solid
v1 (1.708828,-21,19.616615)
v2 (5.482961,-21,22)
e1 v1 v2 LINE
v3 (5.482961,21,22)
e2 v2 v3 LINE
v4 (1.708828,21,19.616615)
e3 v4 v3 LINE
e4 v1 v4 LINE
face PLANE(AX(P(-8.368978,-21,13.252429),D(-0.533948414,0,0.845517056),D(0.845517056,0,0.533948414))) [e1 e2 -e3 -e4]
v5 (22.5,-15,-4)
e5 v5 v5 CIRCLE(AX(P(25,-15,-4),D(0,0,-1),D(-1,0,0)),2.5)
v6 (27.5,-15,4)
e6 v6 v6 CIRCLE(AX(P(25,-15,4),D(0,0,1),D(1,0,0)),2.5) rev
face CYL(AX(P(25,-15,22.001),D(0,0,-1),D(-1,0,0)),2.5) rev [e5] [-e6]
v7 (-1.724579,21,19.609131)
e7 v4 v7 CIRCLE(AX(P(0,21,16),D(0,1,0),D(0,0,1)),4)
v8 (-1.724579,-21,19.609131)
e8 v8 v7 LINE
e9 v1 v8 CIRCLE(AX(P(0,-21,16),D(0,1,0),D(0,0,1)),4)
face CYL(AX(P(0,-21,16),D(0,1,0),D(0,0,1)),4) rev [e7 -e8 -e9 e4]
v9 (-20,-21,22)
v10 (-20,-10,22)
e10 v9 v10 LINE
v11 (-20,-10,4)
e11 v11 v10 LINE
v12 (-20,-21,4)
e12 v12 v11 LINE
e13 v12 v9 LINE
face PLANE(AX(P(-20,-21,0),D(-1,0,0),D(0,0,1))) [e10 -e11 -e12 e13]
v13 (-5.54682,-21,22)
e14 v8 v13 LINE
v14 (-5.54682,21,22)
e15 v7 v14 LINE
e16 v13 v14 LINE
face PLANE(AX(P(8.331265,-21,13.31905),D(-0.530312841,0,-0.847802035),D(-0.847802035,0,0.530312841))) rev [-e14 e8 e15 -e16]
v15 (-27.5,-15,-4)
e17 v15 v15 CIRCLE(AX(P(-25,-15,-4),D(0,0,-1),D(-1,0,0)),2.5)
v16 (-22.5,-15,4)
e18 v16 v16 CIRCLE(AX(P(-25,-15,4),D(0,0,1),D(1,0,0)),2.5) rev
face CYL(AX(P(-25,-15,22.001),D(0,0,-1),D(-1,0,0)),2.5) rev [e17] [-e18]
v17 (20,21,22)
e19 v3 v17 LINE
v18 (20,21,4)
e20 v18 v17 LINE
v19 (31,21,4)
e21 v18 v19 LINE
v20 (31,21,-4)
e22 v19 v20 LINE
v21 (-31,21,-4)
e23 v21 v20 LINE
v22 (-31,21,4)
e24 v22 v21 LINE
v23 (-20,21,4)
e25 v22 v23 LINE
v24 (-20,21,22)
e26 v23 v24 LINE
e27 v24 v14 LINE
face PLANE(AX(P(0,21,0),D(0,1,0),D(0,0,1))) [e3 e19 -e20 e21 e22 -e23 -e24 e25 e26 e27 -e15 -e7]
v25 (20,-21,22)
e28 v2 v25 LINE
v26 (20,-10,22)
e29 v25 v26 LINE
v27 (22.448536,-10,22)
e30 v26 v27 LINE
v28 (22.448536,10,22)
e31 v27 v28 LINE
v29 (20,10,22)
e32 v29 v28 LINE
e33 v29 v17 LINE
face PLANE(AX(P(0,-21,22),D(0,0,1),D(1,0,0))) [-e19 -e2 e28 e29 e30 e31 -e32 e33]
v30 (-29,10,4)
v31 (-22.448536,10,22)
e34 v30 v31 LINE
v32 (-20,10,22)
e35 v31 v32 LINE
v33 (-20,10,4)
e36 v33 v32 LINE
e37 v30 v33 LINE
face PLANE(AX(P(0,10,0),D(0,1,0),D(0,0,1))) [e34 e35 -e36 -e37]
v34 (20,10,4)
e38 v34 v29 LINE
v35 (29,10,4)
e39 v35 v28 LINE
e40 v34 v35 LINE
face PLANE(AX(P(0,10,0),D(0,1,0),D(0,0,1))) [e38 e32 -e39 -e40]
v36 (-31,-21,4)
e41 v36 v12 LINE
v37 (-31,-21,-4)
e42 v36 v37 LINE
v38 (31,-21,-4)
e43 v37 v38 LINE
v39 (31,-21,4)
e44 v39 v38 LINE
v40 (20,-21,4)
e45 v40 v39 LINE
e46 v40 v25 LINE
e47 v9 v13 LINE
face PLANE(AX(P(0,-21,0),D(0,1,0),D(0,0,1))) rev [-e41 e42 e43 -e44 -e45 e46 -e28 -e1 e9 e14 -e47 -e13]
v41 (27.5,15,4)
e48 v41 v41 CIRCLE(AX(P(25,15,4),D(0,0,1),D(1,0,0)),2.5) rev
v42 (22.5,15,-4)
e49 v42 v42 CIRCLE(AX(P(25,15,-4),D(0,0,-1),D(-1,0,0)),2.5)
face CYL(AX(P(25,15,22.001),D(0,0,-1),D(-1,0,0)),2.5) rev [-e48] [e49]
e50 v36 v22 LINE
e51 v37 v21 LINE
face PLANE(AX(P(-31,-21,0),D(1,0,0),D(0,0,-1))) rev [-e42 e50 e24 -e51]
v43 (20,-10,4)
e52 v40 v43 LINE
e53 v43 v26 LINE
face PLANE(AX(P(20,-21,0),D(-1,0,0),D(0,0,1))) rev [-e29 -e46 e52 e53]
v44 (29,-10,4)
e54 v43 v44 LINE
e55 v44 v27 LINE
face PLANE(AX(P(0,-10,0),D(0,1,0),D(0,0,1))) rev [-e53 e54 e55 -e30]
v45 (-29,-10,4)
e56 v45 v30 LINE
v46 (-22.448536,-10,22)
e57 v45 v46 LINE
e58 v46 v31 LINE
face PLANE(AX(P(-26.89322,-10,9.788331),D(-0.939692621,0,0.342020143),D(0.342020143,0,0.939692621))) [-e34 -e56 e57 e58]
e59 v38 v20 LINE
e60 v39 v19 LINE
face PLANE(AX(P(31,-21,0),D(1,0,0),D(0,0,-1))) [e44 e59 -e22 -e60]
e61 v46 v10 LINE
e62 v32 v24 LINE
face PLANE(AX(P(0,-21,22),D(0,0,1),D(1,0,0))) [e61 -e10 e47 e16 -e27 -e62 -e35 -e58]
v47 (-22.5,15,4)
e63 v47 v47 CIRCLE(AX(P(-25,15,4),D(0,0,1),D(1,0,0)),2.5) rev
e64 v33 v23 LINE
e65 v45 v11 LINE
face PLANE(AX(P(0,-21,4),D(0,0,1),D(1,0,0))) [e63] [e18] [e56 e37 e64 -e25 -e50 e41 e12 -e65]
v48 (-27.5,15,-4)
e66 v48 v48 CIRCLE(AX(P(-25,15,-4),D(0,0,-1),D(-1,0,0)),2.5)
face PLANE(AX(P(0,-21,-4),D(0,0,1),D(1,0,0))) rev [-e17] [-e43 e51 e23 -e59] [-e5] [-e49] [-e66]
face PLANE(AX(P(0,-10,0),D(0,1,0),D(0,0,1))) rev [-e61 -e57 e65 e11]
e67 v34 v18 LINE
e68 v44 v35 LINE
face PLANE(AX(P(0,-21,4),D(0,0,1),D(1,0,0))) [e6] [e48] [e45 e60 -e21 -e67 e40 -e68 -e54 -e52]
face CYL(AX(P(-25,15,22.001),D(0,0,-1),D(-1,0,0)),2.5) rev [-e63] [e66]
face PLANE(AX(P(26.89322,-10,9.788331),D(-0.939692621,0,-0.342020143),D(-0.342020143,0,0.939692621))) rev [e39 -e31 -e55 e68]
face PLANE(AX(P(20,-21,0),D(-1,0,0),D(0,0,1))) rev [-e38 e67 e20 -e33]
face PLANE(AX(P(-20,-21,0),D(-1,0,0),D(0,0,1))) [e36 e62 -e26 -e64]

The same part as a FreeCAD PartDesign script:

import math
import FreeCAD as App
import Part
import Sketcher
from FreeCAD import Vector
Q = App.Units.Quantity


def add_polygon(sketch, points):
    """Adds a closed chain of lines whose ends are joined by coincident constraints."""
    first, n = sketch.GeometryCount, len(points)
    for a, b in zip(points, points[1:] + points[:1]):
        sketch.addGeometry(Part.LineSegment(App.Vector(*a, 0), App.Vector(*b, 0)), False)
    for i in range(n):
        sketch.addConstraint(Sketcher.Constraint("Coincident", first + i, 2, first + (i + 1) % n, 1))

doc = App.newDocument("Part")
params = doc.addObject("Spreadsheet::Sheet", "Params")
for row, (alias, value) in enumerate([
    ("sketch1_radius", "4 mm"),
    ("sketch1_width", "11 mm"),
    ("sketch1_width2", "62 mm"),
    ("sketch1_height", "18 mm"),
    ("sketch1_height2", "8 mm"),
    ("pad1_length", "21 mm"),
    ("pad1_length2", "21 mm"),
    ("sketch2_width", "9 mm"),
    ("sketch2_height", "18 mm"),
    ("pad2_length", "10 mm"),
    ("pad2_length2", "10 mm"),
    ("sketch3_diameter", "5 mm"),
    ("sketch4_diameter", "5 mm"),
    ("sketch5_diameter", "5 mm"),
    ("sketch6_diameter", "5 mm"),
], start=1):
    params.set(f"A{row}", alias)
    params.set(f"B{row}", "=" + value)
    params.setAlias(f"B{row}", alias)

body = doc.addObject("PartDesign::Body", "Body")

sketch1 = body.newObject("Sketcher::SketchObject", "Sketch")
sketch1.AttachmentSupport = (doc.getObject("XZ_Plane"), [""])
sketch1.MapMode = "FlatFace"
sketch1.addGeometry([
    Part.LineSegment(Vector(20, 22, 0), Vector(20, 4, 0)),
    Part.LineSegment(Vector(20, 4, 0), Vector(31, 4, 0)),
    Part.LineSegment(Vector(31, 4, 0), Vector(31, -4, 0)),
    Part.LineSegment(Vector(31, -4, 0), Vector(-31, -4, 0)),
    Part.LineSegment(Vector(-31, -4, 0), Vector(-31, 4, 0)),
    Part.LineSegment(Vector(-31, 4, 0), Vector(-20, 4, 0)),
    Part.LineSegment(Vector(-20, 4, 0), Vector(-20, 22, 0)),
    Part.LineSegment(Vector(-20, 22, 0), Vector(-5.5, 22, 0)),
    Part.LineSegment(Vector(-5.5, 22, 0), Vector(-1.7, 19.6, 0)),
    Part.ArcOfCircle(Part.Circle(Vector(0, 16, 0), Vector(0, 0, 1), 4), math.radians(116), math.radians(425)),
    Part.LineSegment(Vector(1.7, 19.6, 0), Vector(5.5, 22, 0)),
    Part.LineSegment(Vector(5.5, 22, 0), Vector(20, 22, 0)),
], False)
sketch1.addConstraint([
    Sketcher.Constraint("Coincident", 0, 2, 1, 1),
    Sketcher.Constraint("Coincident", 1, 2, 2, 1),
    Sketcher.Constraint("Coincident", 2, 2, 3, 1),
    Sketcher.Constraint("Coincident", 3, 2, 4, 1),
    Sketcher.Constraint("Coincident", 4, 2, 5, 1),
    Sketcher.Constraint("Coincident", 5, 2, 6, 1),
    Sketcher.Constraint("Coincident", 6, 2, 7, 1),
    Sketcher.Constraint("Coincident", 7, 2, 8, 1),
    Sketcher.Constraint("Coincident", 8, 2, 9, 1),
    Sketcher.Constraint("Coincident", 9, 2, 10, 1),
    Sketcher.Constraint("Coincident", 10, 2, 11, 1),
    Sketcher.Constraint("Coincident", 11, 2, 0, 1),
    Sketcher.Constraint("Vertical", 0),
    Sketcher.Constraint("Horizontal", 1),
    Sketcher.Constraint("Vertical", 2),
    Sketcher.Constraint("Horizontal", 3),
    Sketcher.Constraint("Vertical", 4),
    Sketcher.Constraint("Horizontal", 5),
    Sketcher.Constraint("Vertical", 6),
    Sketcher.Constraint("Horizontal", 7),
    Sketcher.Constraint("Horizontal", 11),
    Sketcher.Constraint("Symmetric", 1, 2, 3, 2, -1, 1),
    Sketcher.Constraint("Symmetric", 0, 2, 5, 2, -2),
    Sketcher.Constraint("PointOnObject", 9, 3, -2),
    Sketcher.Constraint("Horizontal", 7, 2, 10, 2),
    Sketcher.Constraint("Radius", 9, Q("4 mm")),
    Sketcher.Constraint("DistanceX", 1, 1, 1, 2, Q("11 mm")),
    Sketcher.Constraint("DistanceX", 3, 2, 3, 1, Q("62 mm")),
    Sketcher.Constraint("DistanceY", 0, 2, 0, 1, Q("18 mm")),
    Sketcher.Constraint("DistanceY", 2, 2, 2, 1, Q("8 mm")),
    Sketcher.Constraint("DistanceY", -1, 1, 9, 3, Q("16 mm")),
    Sketcher.Constraint("Distance", 10, Q("4.463698 mm")),
    Sketcher.Constraint("DistanceX", 7, 1, 7, 2, Q("14.45318 mm")),
    Sketcher.Constraint("DistanceX", 11, 1, 11, 2, Q("14.517039 mm")),
    Sketcher.Constraint("DistanceX", 8, 2, -1, 1, Q("1.724579 mm")),
])
sketch1.setExpression("Constraints[25]", "Params.sketch1_radius")
sketch1.setExpression("Constraints[26]", "Params.sketch1_width")
sketch1.setExpression("Constraints[27]", "Params.sketch1_width2")
sketch1.setExpression("Constraints[28]", "Params.sketch1_height")
sketch1.setExpression("Constraints[29]", "Params.sketch1_height2")
pad1 = body.newObject("PartDesign::Pad", "Pad")
pad1.Profile = sketch1
pad1.Type = "TwoLengths"
pad1.setExpression("Length", "Params.pad1_length")
pad1.setExpression("Length2", "Params.pad1_length2")
pad1.Reversed = True

sketch2 = body.newObject("Sketcher::SketchObject", "Sketch001")
sketch2.AttachmentSupport = (doc.getObject("XZ_Plane"), [""])
sketch2.MapMode = "FlatFace"
add_polygon(sketch2, [(29, 4), (20, 4), (20, 22), (22.4, 22)])
add_polygon(sketch2, [(-20, 4), (-29, 4), (-22.4, 22), (-20, 22)])
sketch2.addConstraint([
    Sketcher.Constraint("Horizontal", 0),
    Sketcher.Constraint("Vertical", 1),
    Sketcher.Constraint("Horizontal", 2),
    Sketcher.Constraint("Horizontal", 4),
    Sketcher.Constraint("Horizontal", 6),
    Sketcher.Constraint("Vertical", 7),
    Sketcher.Constraint("Symmetric", 3, 2, 4, 2, -2),
    Sketcher.Constraint("Symmetric", 2, 2, 5, 2, -2),
    Sketcher.Constraint("Equal", 0, 4),
    Sketcher.Constraint("DistanceX", 0, 2, 0, 1, Q("9 mm")),
    Sketcher.Constraint("DistanceY", 1, 1, 1, 2, Q("18 mm")),
    Sketcher.Constraint("Angle", 3, Q("-70 deg")),
    Sketcher.Constraint("DistanceX", -1, 1, 0, 2, Q("20 mm")),
    Sketcher.Constraint("DistanceY", -1, 1, 0, 2, Q("4 mm")),
])
sketch2.setExpression("Constraints[17]", "Params.sketch2_width")
sketch2.setExpression("Constraints[18]", "Params.sketch2_height")
pad2 = body.newObject("PartDesign::Pad", "Pad001")
pad2.Profile = sketch2
pad2.Type = "TwoLengths"
pad2.setExpression("Length", "Params.pad2_length")
pad2.setExpression("Length2", "Params.pad2_length2")
pad2.Reversed = True

sketch3 = body.newObject("Sketcher::SketchObject", "Sketch002")
sketch3.AttachmentSupport = (doc.getObject("XY_Plane"), [""])
sketch3.MapMode = "FlatFace"
sketch3.AttachmentOffset = App.Placement(Vector(0, 0, -4), App.Rotation())
sketch3.addGeometry(Part.Circle(Vector(25, 15, 0), Vector(0, 0, 1), 2.5), False)
sketch3.addConstraint([
    Sketcher.Constraint("Diameter", 0, Q("5 mm")),
    Sketcher.Constraint("DistanceX", -1, 1, 0, 3, Q("25 mm")),
    Sketcher.Constraint("DistanceY", -1, 1, 0, 3, Q("15 mm")),
])
sketch3.setExpression("Constraints[0]", "Params.sketch3_diameter")
pocket1 = body.newObject("PartDesign::Pocket", "Pocket")
pocket1.Profile = sketch3
pocket1.Type = "UpToFirst"
pocket1.Reversed = True

sketch4 = body.newObject("Sketcher::SketchObject", "Sketch003")
sketch4.AttachmentSupport = (doc.getObject("XY_Plane"), [""])
sketch4.MapMode = "FlatFace"
sketch4.AttachmentOffset = App.Placement(Vector(0, 0, -4), App.Rotation())
sketch4.addGeometry(Part.Circle(Vector(-25, 15, 0), Vector(0, 0, 1), 2.5), False)
sketch4.addConstraint([
    Sketcher.Constraint("Diameter", 0, Q("5 mm")),
    Sketcher.Constraint("DistanceX", 0, 3, -1, 1, Q("25 mm")),
    Sketcher.Constraint("DistanceY", -1, 1, 0, 3, Q("15 mm")),
])
sketch4.setExpression("Constraints[0]", "Params.sketch4_diameter")
pocket2 = body.newObject("PartDesign::Pocket", "Pocket001")
pocket2.Profile = sketch4
pocket2.Type = "UpToFirst"
pocket2.Reversed = True

sketch5 = body.newObject("Sketcher::SketchObject", "Sketch004")
sketch5.AttachmentSupport = (doc.getObject("XY_Plane"), [""])
sketch5.MapMode = "FlatFace"
sketch5.AttachmentOffset = App.Placement(Vector(0, 0, -4), App.Rotation())
sketch5.addGeometry(Part.Circle(Vector(25, -15, 0), Vector(0, 0, 1), 2.5), False)
sketch5.addConstraint([
    Sketcher.Constraint("Diameter", 0, Q("5 mm")),
    Sketcher.Constraint("DistanceX", -1, 1, 0, 3, Q("25 mm")),
    Sketcher.Constraint("DistanceY", 0, 3, -1, 1, Q("15 mm")),
])
sketch5.setExpression("Constraints[0]", "Params.sketch5_diameter")
pocket3 = body.newObject("PartDesign::Pocket", "Pocket002")
pocket3.Profile = sketch5
pocket3.Type = "UpToFirst"
pocket3.Reversed = True

sketch6 = body.newObject("Sketcher::SketchObject", "Sketch005")
sketch6.AttachmentSupport = (doc.getObject("XY_Plane"), [""])
sketch6.MapMode = "FlatFace"
sketch6.AttachmentOffset = App.Placement(Vector(0, 0, -4), App.Rotation())
sketch6.addGeometry(Part.Circle(Vector(-25, -15, 0), Vector(0, 0, 1), 2.5), False)
sketch6.addConstraint([
    Sketcher.Constraint("Diameter", 0, Q("5 mm")),
    Sketcher.Constraint("DistanceX", 0, 3, -1, 1, Q("25 mm")),
    Sketcher.Constraint("DistanceY", 0, 3, -1, 1, Q("15 mm")),
])
sketch6.setExpression("Constraints[0]", "Params.sketch6_diameter")
pocket4 = body.newObject("PartDesign::Pocket", "Pocket003")
pocket4.Profile = sketch6
pocket4.Type = "UpToFirst"
pocket4.Reversed = True

doc.recompute()
